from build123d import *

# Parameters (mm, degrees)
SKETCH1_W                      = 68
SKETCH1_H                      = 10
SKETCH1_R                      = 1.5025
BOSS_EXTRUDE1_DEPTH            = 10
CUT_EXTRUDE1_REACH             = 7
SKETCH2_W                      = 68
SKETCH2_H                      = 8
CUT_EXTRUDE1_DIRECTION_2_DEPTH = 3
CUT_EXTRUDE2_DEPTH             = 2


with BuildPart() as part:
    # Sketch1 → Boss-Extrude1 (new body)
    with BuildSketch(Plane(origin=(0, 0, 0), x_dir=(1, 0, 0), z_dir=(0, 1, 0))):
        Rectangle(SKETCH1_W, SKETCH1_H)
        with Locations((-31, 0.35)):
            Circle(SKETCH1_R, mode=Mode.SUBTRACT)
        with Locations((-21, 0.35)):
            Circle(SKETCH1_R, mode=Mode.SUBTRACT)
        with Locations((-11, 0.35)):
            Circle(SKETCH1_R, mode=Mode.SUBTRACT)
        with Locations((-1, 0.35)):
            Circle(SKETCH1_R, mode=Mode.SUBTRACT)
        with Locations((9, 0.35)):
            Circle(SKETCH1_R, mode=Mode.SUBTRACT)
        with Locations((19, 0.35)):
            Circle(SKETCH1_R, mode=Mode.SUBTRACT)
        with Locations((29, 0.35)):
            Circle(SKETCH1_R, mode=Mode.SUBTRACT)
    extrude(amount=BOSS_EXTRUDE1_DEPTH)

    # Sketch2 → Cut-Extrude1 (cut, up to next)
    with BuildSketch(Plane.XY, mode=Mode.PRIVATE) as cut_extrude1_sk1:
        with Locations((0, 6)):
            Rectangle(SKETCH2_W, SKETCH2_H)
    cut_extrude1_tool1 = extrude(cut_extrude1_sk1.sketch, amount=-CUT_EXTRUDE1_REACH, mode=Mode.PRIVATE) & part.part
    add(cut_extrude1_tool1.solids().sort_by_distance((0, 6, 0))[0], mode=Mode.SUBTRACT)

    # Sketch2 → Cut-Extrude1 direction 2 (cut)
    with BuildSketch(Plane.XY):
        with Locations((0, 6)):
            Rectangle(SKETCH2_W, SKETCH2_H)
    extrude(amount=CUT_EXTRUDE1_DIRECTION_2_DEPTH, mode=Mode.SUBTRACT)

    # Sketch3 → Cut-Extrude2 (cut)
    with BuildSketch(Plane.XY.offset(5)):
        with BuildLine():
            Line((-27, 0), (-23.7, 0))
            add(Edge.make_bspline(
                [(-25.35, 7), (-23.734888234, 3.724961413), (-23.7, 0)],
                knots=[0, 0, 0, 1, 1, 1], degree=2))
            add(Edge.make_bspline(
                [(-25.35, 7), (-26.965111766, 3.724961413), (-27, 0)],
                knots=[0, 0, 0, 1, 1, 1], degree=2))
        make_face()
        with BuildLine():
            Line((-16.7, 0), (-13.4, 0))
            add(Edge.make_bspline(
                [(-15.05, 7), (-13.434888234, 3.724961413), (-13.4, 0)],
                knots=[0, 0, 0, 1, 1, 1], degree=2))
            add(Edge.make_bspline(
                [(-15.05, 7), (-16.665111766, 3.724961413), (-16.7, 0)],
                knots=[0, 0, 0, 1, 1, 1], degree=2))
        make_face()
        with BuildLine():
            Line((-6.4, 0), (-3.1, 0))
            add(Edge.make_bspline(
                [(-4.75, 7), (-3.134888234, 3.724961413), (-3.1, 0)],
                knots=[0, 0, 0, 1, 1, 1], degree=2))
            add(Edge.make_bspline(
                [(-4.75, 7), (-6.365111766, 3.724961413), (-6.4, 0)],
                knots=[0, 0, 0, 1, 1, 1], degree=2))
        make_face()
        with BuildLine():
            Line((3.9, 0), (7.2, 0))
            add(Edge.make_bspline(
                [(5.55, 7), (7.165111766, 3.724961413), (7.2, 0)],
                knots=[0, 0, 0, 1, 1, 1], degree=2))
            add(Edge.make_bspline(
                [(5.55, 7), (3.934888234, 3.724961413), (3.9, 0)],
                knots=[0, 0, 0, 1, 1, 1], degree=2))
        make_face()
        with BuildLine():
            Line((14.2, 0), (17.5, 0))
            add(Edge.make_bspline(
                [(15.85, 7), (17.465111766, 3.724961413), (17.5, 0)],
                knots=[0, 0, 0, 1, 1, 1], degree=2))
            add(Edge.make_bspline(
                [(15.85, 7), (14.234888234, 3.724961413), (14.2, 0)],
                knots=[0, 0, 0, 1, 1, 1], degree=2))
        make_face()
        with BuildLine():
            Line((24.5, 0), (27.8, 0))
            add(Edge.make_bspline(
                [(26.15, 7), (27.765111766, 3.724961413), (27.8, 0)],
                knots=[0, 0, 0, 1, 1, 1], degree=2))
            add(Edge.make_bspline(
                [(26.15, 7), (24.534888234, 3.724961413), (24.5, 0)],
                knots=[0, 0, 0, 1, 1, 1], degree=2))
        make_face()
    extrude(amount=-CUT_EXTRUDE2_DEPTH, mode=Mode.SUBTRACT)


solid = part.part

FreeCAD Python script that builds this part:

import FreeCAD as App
import Part
import Sketcher
from FreeCAD import Vector


def add_polygon(sketch, points):
    """Adds a closed chain of lines whose ends are joined by coincident constraints."""
    first, n = sketch.GeometryCount, len(points)
    for a, b in zip(points, points[1:] + points[:1]):
        sketch.addGeometry(Part.LineSegment(App.Vector(*a, 0), App.Vector(*b, 0)), False)
    for i in range(n):
        sketch.addConstraint(Sketcher.Constraint("Coincident", first + i, 2, first + (i + 1) % n, 1))

doc = App.newDocument("Part")
body = doc.addObject("PartDesign::Body", "Body")

# Sketch on XZ plane
sketch1 = doc.addObject("Sketcher::SketchObject", "Sketch")
body.addObject(sketch1)
sketch1.AttachmentSupport = (doc.XZ_Plane, [""])
sketch1.MapMode = "FlatFace"
add_polygon(sketch1, [(-34, -5), (-34, 5), (34, 5), (34, -5)])  # lines 0-3
sketch1.addGeometry(Part.Circle(Vector(-31, -0.35, 0), Vector(0, 0, 1), 1.5025), False)  # 4
sketch1.addGeometry(Part.Circle(Vector(-21, -0.35, 0), Vector(0, 0, 1), 1.5025), False)  # 5
sketch1.addGeometry(Part.Circle(Vector(-11, -0.35, 0), Vector(0, 0, 1), 1.5025), False)  # 6
sketch1.addGeometry(Part.Circle(Vector(-1, -0.35, 0), Vector(0, 0, 1), 1.5025), False)  # 7
sketch1.addGeometry(Part.Circle(Vector(9, -0.35, 0), Vector(0, 0, 1), 1.5025), False)  # 8
sketch1.addGeometry(Part.Circle(Vector(19, -0.35, 0), Vector(0, 0, 1), 1.5025), False)  # 9
sketch1.addGeometry(Part.Circle(Vector(29, -0.35, 0), Vector(0, 0, 1), 1.5025), False)  # 10
sketch1.addConstraint(Sketcher.Constraint("Vertical", 0))
sketch1.addConstraint(Sketcher.Constraint("Horizontal", 1))
sketch1.addConstraint(Sketcher.Constraint("Vertical", 2))
sketch1.addConstraint(Sketcher.Constraint("Horizontal", 3))
sketch1.addConstraint(Sketcher.Constraint("Equal", 4, 5))
sketch1.addConstraint(Sketcher.Constraint("Equal", 5, 6))
sketch1.addConstraint(Sketcher.Constraint("Equal", 6, 7))
sketch1.addConstraint(Sketcher.Constraint("Equal", 7, 8))
sketch1.addConstraint(Sketcher.Constraint("Equal", 8, 9))
sketch1.addConstraint(Sketcher.Constraint("Equal", 9, 10))
sketch1.addConstraint(Sketcher.Constraint("Symmetric", 0, 2, 2, 2, -1, 1))
sketch1.addConstraint(Sketcher.Constraint("Horizontal", 4, 3, 5, 3))
sketch1.addConstraint(Sketcher.Constraint("Horizontal", 5, 3, 6, 3))
sketch1.addConstraint(Sketcher.Constraint("Horizontal", 6, 3, 7, 3))
sketch1.addConstraint(Sketcher.Constraint("Horizontal", 7, 3, 8, 3))
sketch1.addConstraint(Sketcher.Constraint("Horizontal", 8, 3, 9, 3))
sketch1.addConstraint(Sketcher.Constraint("Horizontal", 9, 3, 10, 3))
sketch1.addConstraint(Sketcher.Constraint("DistanceX", 1, 1, 1, 2, 68.0))
sketch1.addConstraint(Sketcher.Constraint("DistanceY", 0, 1, 0, 2, 10.0))
sketch1.addConstraint(Sketcher.Constraint("Diameter", 4, 3.005))
sketch1.addConstraint(Sketcher.Constraint("DistanceX", 4, 3, -1, 1, 31.0))
sketch1.addConstraint(Sketcher.Constraint("DistanceX", 5, 3, -1, 1, 21.0))
sketch1.addConstraint(Sketcher.Constraint("DistanceX", 6, 3, -1, 1, 11.0))
sketch1.addConstraint(Sketcher.Constraint("DistanceX", 7, 3, -1, 1, 1.0))
sketch1.addConstraint(Sketcher.Constraint("DistanceX", -1, 1, 8, 3, 9.0))
sketch1.addConstraint(Sketcher.Constraint("DistanceX", -1, 1, 9, 3, 19.0))
sketch1.addConstraint(Sketcher.Constraint("DistanceX", -1, 1, 10, 3, 29.0))
sketch1.addConstraint(Sketcher.Constraint("DistanceY", 4, 3, -1, 1, 0.35))
pad1 = doc.addObject("PartDesign::Pad", "Pad")
body.addObject(pad1)
pad1.Profile = sketch1
pad1.Length = 10
pad1.Reversed = True

# Sketch on XY plane
sketch2 = doc.addObject("Sketcher::SketchObject", "Sketch001")
body.addObject(sketch2)
sketch2.AttachmentSupport = (doc.XY_Plane, [""])
sketch2.MapMode = "FlatFace"
add_polygon(sketch2, [(-34, 10), (-34, 2), (34, 2), (34, 10)])  # lines 0-3
sketch2.addConstraint(Sketcher.Constraint("Vertical", 0))
sketch2.addConstraint(Sketcher.Constraint("Horizontal", 1))
sketch2.addConstraint(Sketcher.Constraint("Vertical", 2))
sketch2.addConstraint(Sketcher.Constraint("Horizontal", 3))
sketch2.addConstraint(Sketcher.Constraint("DistanceX", 1, 1, 1, 2, 68.0))
sketch2.addConstraint(Sketcher.Constraint("DistanceY", 0, 2, 0, 1, 8.0))
sketch2.addConstraint(Sketcher.Constraint("DistanceX", 0, 2, -1, 1, 34.0))
sketch2.addConstraint(Sketcher.Constraint("DistanceY", -1, 1, 0, 2, 2.0))
pocket1 = doc.addObject("PartDesign::Pocket", "Pocket")
body.addObject(pocket1)
pocket1.Profile = sketch2
pocket1.Length = 5

# Sketch on XY plane
sketch3 = doc.addObject("Sketcher::SketchObject", "Sketch002")
body.addObject(sketch3)
sketch3.AttachmentSupport = (doc.XY_Plane, [""])
sketch3.MapMode = "FlatFace"
add_polygon(sketch3, [(-34, 10), (-34, 2), (34, 2), (34, 10)])  # lines 0-3
sketch3.addConstraint(Sketcher.Constraint("Vertical", 0))
sketch3.addConstraint(Sketcher.Constraint("Horizontal", 1))
sketch3.addConstraint(Sketcher.Constraint("Vertical", 2))
sketch3.addConstraint(Sketcher.Constraint("Horizontal", 3))
sketch3.addConstraint(Sketcher.Constraint("DistanceX", 1, 1, 1, 2, 68.0))
sketch3.addConstraint(Sketcher.Constraint("DistanceY", 0, 2, 0, 1, 8.0))
sketch3.addConstraint(Sketcher.Constraint("DistanceX", 0, 2, -1, 1, 34.0))
sketch3.addConstraint(Sketcher.Constraint("DistanceY", -1, 1, 0, 2, 2.0))
pocket2 = doc.addObject("PartDesign::Pocket", "Pocket001")
body.addObject(pocket2)
pocket2.Profile = sketch3
pocket2.Length = 3
pocket2.Reversed = True

# Sketch on XY plane
sketch4 = doc.addObject("Sketcher::SketchObject", "Sketch003")
body.addObject(sketch4)
sketch4.AttachmentSupport = (doc.XY_Plane, [""])
sketch4.MapMode = "FlatFace"
sketch4.AttachmentOffset = App.Placement(Vector(0, 0, 5), App.Rotation())
sketch4.addGeometry(Part.LineSegment(Vector(-27, 0, 0), Vector(-23.7, 0, 0)), False)
sketch4.addGeometry(Part.BSplineCurve([Vector(-25.35, 7, 0), Vector(-23.734888, 3.724961, 0), Vector(-23.7, 0, 0)], [3, 3], [0, 1], False, 2, [1, 1, 1], False), False)
sketch4.addGeometry(Part.BSplineCurve([Vector(-25.35, 7, 0), Vector(-26.965112, 3.724961, 0), Vector(-27, 0, 0)], [3, 3], [0, 1], False, 2, [1, 1, 1], False), False)
sketch4.addGeometry(Part.LineSegment(Vector(-16.7, 0, 0), Vector(-13.4, 0, 0)), False)
sketch4.addGeometry(Part.BSplineCurve([Vector(-15.05, 7, 0), Vector(-13.434888, 3.724961, 0), Vector(-13.4, 0, 0)], [3, 3], [0, 1], False, 2, [1, 1, 1], False), False)
sketch4.addGeometry(Part.BSplineCurve([Vector(-15.05, 7, 0), Vector(-16.665112, 3.724961, 0), Vector(-16.7, 0, 0)], [3, 3], [0, 1], False, 2, [1, 1, 1], False), False)
sketch4.addGeometry(Part.LineSegment(Vector(-6.4, 0, 0), Vector(-3.1, 0, 0)), False)
sketch4.addGeometry(Part.BSplineCurve([Vector(-4.75, 7, 0), Vector(-3.134888, 3.724961, 0), Vector(-3.1, 0, 0)], [3, 3], [0, 1], False, 2, [1, 1, 1], False), False)
sketch4.addGeometry(Part.BSplineCurve([Vector(-4.75, 7, 0), Vector(-6.365112, 3.724961, 0), Vector(-6.4, 0, 0)], [3, 3], [0, 1], False, 2, [1, 1, 1], False), False)
sketch4.addGeometry(Part.LineSegment(Vector(3.9, 0, 0), Vector(7.2, 0, 0)), False)
sketch4.addGeometry(Part.BSplineCurve([Vector(5.55, 7, 0), Vector(7.165112, 3.724961, 0), Vector(7.2, 0, 0)], [3, 3], [0, 1], False, 2, [1, 1, 1], False), False)
sketch4.addGeometry(Part.BSplineCurve([Vector(5.55, 7, 0), Vector(3.934888, 3.724961, 0), Vector(3.9, 0, 0)], [3, 3], [0, 1], False, 2, [1, 1, 1], False), False)
sketch4.addGeometry(Part.LineSegment(Vector(14.2, 0, 0), Vector(17.5, 0, 0)), False)
sketch4.addGeometry(Part.BSplineCurve([Vector(15.85, 7, 0), Vector(17.465112, 3.724961, 0), Vector(17.5, 0, 0)], [3, 3], [0, 1], False, 2, [1, 1, 1], False), False)
sketch4.addGeometry(Part.BSplineCurve([Vector(15.85, 7, 0), Vector(14.234888, 3.724961, 0), Vector(14.2, 0, 0)], [3, 3], [0, 1], False, 2, [1, 1, 1], False), False)
sketch4.addGeometry(Part.LineSegment(Vector(24.5, 0, 0), Vector(27.8, 0, 0)), False)
sketch4.addGeometry(Part.BSplineCurve([Vector(26.15, 7, 0), Vector(27.765112, 3.724961, 0), Vector(27.8, 0, 0)], [3, 3], [0, 1], False, 2, [1, 1, 1], False), False)
sketch4.addGeometry(Part.BSplineCurve([Vector(26.15, 7, 0), Vector(24.534888, 3.724961, 0), Vector(24.5, 0, 0)], [3, 3], [0, 1], False, 2, [1, 1, 1], False), False)
sketch4.addConstraint(Sketcher.Constraint("Block", 1))
sketch4.addConstraint(Sketcher.Constraint("Block", 2))
sketch4.addConstraint(Sketcher.Constraint("Block", 4))
sketch4.addConstraint(Sketcher.Constraint("Block", 5))
sketch4.addConstraint(Sketcher.Constraint("Block", 7))
sketch4.addConstraint(Sketcher.Constraint("Block", 8))
sketch4.addConstraint(Sketcher.Constraint("Block", 10))
sketch4.addConstraint(Sketcher.Constraint("Block", 11))
sketch4.addConstraint(Sketcher.Constraint("Block", 13))
sketch4.addConstraint(Sketcher.Constraint("Block", 14))
sketch4.addConstraint(Sketcher.Constraint("Block", 16))
sketch4.addConstraint(Sketcher.Constraint("Block", 17))
sketch4.addConstraint(Sketcher.Constraint("Coincident", 0, 2, 1, 2))
sketch4.addConstraint(Sketcher.Constraint("Coincident", 2, 2, 0, 1))
sketch4.addConstraint(Sketcher.Constraint("Coincident", 3, 2, 4, 2))
sketch4.addConstraint(Sketcher.Constraint("Coincident", 5, 2, 3, 1))
sketch4.addConstraint(Sketcher.Constraint("Coincident", 6, 2, 7, 2))
sketch4.addConstraint(Sketcher.Constraint("Coincident", 8, 2, 6, 1))
sketch4.addConstraint(Sketcher.Constraint("Coincident", 9, 2, 10, 2))
sketch4.addConstraint(Sketcher.Constraint("Coincident", 11, 2, 9, 1))
sketch4.addConstraint(Sketcher.Constraint("Coincident", 12, 2, 13, 2))
sketch4.addConstraint(Sketcher.Constraint("Coincident", 14, 2, 12, 1))
sketch4.addConstraint(Sketcher.Constraint("Coincident", 15, 2, 16, 2))
sketch4.addConstraint(Sketcher.Constraint("Coincident", 17, 2, 15, 1))
pocket3 = doc.addObject("PartDesign::Pocket", "Pocket002")
body.addObject(pocket3)
pocket3.Profile = sketch4
pocket3.Length = 2

doc.recompute()
